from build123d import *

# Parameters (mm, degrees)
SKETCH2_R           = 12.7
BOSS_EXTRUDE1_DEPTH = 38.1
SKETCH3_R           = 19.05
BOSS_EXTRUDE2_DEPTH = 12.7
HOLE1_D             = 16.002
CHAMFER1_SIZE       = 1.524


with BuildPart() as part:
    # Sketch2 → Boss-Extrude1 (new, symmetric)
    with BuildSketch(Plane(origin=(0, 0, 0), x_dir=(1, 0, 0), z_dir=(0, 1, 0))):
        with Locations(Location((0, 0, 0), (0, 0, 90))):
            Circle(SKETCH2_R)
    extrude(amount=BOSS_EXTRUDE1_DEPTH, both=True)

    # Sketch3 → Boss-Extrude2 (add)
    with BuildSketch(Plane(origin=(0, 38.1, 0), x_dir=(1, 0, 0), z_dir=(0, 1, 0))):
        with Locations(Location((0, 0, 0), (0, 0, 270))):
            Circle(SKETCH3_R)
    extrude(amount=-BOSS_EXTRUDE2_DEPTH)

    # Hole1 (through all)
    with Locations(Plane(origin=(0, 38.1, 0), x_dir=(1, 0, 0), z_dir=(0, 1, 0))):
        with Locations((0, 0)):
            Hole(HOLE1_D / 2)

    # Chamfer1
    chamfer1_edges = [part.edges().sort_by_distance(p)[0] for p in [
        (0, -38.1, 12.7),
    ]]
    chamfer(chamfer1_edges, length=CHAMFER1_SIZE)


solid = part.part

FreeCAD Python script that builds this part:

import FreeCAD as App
import Part
import Sketcher

V = App.Vector
Q = App.Units.Quantity


def edges_at(feature, points):
    """Names of the edges that pass closest to the given points."""
    edges = feature.Shape.Edges
    near = lambda p: min(range(len(edges)), key=lambda i: edges[i].distToShape(Part.Vertex(*p))[0])
    return sorted({f"Edge{near(p) + 1}" for p in points})

doc = App.newDocument("Part")
body = doc.addObject("PartDesign::Body", "Body")

# Sketch on XZ plane
sketch1 = doc.addObject("Sketcher::SketchObject", "Sketch")
body.addObject(sketch1)
sketch1.AttachmentSupport = (doc.XZ_Plane, [""])
sketch1.MapMode = "FlatFace"
sketch1.addGeometry(Part.Circle(V(0, 0, 0), V(0, 0, 1), 13), False)
sketch1.addConstraint([
    Sketcher.Constraint("Coincident", 0, 3, -1, 1),
    Sketcher.Constraint("Diameter", 0, Q("1 in")),
])
pad1 = doc.addObject("PartDesign::Pad", "Pad")
body.addObject(pad1)
pad1.Profile = sketch1
pad1.Length = Q("3 in")
pad1.Midplane = True

# Sketch on XZ plane
sketch2 = doc.addObject("Sketcher::SketchObject", "Sketch001")
body.addObject(sketch2)
sketch2.AttachmentSupport = (doc.XZ_Plane, [""])
sketch2.MapMode = "FlatFace"
sketch2.AttachmentOffset = App.Placement(V(0, 0, -1.5 * 25.4), App.Rotation())
sketch2.addGeometry(Part.Circle(V(0, 0, 0), V(0, 0, 1), 19), False)
sketch2.addConstraint([
    Sketcher.Constraint("Coincident", 0, 3, -1, 1),
    Sketcher.Constraint("Diameter", 0, Q("1.5 in")),
])
pad2 = doc.addObject("PartDesign::Pad", "Pad001")
body.addObject(pad2)
pad2.Profile = sketch2
pad2.Length = Q("0.5 in")

# Sketch on XZ plane
sketch3 = doc.addObject("Sketcher::SketchObject", "Sketch002")
body.addObject(sketch3)
sketch3.AttachmentSupport = (doc.XZ_Plane, [""])
sketch3.MapMode = "FlatFace"
sketch3.AttachmentOffset = App.Placement(V(0, 0, -1.5 * 25.4), App.Rotation())
sketch3.addGeometry(Part.Circle(V(0, 0, 0), V(0, 0, 1), 8), False)
sketch3.addConstraint([
    Sketcher.Constraint("Coincident", 0, 3, -1, 1),
    Sketcher.Constraint("Diameter", 0, Q("0.63 in")),
])
doc.recompute()
hole = doc.addObject("PartDesign::Hole", "Hole")
body.addObject(hole)
hole.Profile = sketch3
hole.ThreadType = "None"
hole.Diameter = Q("0.63 in")
hole.DepthType = "ThroughAll"
hole.Reversed = True
doc.recompute()

chamfer = doc.addObject("PartDesign::Chamfer", "Chamfer")
body.addObject(chamfer)
chamfer.Base = (hole, edges_at(hole, [(0, -38.1, 12.7)]))
chamfer.Size = Q("0.06 in")

doc.recompute()
